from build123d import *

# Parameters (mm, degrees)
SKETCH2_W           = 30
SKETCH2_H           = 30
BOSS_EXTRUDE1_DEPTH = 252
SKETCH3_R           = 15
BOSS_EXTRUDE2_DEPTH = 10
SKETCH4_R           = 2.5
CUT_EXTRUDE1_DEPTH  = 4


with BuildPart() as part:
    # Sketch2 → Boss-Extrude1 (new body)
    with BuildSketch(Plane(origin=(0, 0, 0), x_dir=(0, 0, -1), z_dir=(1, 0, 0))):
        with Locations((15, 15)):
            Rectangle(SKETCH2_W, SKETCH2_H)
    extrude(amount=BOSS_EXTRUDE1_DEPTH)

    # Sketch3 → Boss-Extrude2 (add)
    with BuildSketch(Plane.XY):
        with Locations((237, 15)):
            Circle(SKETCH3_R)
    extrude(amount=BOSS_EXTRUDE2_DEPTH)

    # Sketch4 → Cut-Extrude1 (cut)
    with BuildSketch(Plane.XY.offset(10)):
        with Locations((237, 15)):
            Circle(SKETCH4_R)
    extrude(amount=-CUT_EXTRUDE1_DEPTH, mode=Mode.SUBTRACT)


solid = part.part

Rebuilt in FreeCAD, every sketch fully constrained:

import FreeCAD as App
import Part
import Sketcher

V = App.Vector

doc = App.newDocument("Part")
body = doc.addObject("PartDesign::Body", "Body")

# Sketch on YZ plane
sketch1 = body.newObject("Sketcher::SketchObject", "Sketch")
sketch1.AttachmentSupport = (doc.getObject("YZ_Plane"), [""])
sketch1.MapMode = "FlatFace"
sketch1.addGeometry(Part.LineSegment(V(30, 0, 0), V(0, 0, 0)), False)
sketch1.addGeometry(Part.LineSegment(V(0, 0, 0), V(0, -30, 0)), False)
sketch1.addGeometry(Part.LineSegment(V(0, -30, 0), V(30, -30, 0)), False)
sketch1.addGeometry(Part.LineSegment(V(30, -30, 0), V(30, 0, 0)), False)
sketch1.addConstraint(Sketcher.Constraint("Coincident", 0, 2, 1, 1))
sketch1.addConstraint(Sketcher.Constraint("Coincident", 1, 2, 2, 1))
sketch1.addConstraint(Sketcher.Constraint("Coincident", 2, 2, 3, 1))
sketch1.addConstraint(Sketcher.Constraint("Coincident", 3, 2, 0, 1))
sketch1.addConstraint(Sketcher.Constraint("Horizontal", 0))
sketch1.addConstraint(Sketcher.Constraint("Vertical", 1))
sketch1.addConstraint(Sketcher.Constraint("Horizontal", 2))
sketch1.addConstraint(Sketcher.Constraint("Vertical", 3))
sketch1.addConstraint(Sketcher.Constraint("Coincident", 0, 2, -1, 1))
sketch1.addConstraint(Sketcher.Constraint("Equal", 2, 1))
sketch1.addConstraint(Sketcher.Constraint("DistanceX", 0, 2, 0, 1, 30.0))
pad1 = body.newObject("PartDesign::Pad", "Pad")
pad1.Profile = sketch1
pad1.Length = 252

# Sketch on XY plane
sketch2 = body.newObject("Sketcher::SketchObject", "Sketch001")
sketch2.AttachmentSupport = (doc.getObject("XY_Plane"), [""])
sketch2.MapMode = "FlatFace"
sketch2.addGeometry(Part.Circle(V(237, 15, 0), V(0, 0, 1), 15), False)
sketch2.addConstraint(Sketcher.Constraint("Diameter", 0, 30.0))
sketch2.addConstraint(Sketcher.Constraint("DistanceX", -1, 1, 0, 3, 237.0))
sketch2.addConstraint(Sketcher.Constraint("DistanceY", -1, 1, 0, 3, 15.0))
pad2 = body.newObject("PartDesign::Pad", "Pad001")
pad2.Profile = sketch2
pad2.Length = 10

# Sketch on XY plane
sketch3 = body.newObject("Sketcher::SketchObject", "Sketch002")
sketch3.AttachmentSupport = (doc.getObject("XY_Plane"), [""])
sketch3.MapMode = "FlatFace"
sketch3.AttachmentOffset = App.Placement(V(0, 0, 10), App.Rotation())
sketch3.addGeometry(Part.Circle(V(237, 15, 0), V(0, 0, 1), 2.5), False)
sketch3.addConstraint(Sketcher.Constraint("Diameter", 0, 5.0))
sketch3.addConstraint(Sketcher.Constraint("DistanceX", -1, 1, 0, 3, 237.0))
sketch3.addConstraint(Sketcher.Constraint("DistanceY", -1, 1, 0, 3, 15.0))
pocket1 = body.newObject("PartDesign::Pocket", "Pocket")
pocket1.Profile = sketch3
pocket1.Length = 4

doc.recompute()
